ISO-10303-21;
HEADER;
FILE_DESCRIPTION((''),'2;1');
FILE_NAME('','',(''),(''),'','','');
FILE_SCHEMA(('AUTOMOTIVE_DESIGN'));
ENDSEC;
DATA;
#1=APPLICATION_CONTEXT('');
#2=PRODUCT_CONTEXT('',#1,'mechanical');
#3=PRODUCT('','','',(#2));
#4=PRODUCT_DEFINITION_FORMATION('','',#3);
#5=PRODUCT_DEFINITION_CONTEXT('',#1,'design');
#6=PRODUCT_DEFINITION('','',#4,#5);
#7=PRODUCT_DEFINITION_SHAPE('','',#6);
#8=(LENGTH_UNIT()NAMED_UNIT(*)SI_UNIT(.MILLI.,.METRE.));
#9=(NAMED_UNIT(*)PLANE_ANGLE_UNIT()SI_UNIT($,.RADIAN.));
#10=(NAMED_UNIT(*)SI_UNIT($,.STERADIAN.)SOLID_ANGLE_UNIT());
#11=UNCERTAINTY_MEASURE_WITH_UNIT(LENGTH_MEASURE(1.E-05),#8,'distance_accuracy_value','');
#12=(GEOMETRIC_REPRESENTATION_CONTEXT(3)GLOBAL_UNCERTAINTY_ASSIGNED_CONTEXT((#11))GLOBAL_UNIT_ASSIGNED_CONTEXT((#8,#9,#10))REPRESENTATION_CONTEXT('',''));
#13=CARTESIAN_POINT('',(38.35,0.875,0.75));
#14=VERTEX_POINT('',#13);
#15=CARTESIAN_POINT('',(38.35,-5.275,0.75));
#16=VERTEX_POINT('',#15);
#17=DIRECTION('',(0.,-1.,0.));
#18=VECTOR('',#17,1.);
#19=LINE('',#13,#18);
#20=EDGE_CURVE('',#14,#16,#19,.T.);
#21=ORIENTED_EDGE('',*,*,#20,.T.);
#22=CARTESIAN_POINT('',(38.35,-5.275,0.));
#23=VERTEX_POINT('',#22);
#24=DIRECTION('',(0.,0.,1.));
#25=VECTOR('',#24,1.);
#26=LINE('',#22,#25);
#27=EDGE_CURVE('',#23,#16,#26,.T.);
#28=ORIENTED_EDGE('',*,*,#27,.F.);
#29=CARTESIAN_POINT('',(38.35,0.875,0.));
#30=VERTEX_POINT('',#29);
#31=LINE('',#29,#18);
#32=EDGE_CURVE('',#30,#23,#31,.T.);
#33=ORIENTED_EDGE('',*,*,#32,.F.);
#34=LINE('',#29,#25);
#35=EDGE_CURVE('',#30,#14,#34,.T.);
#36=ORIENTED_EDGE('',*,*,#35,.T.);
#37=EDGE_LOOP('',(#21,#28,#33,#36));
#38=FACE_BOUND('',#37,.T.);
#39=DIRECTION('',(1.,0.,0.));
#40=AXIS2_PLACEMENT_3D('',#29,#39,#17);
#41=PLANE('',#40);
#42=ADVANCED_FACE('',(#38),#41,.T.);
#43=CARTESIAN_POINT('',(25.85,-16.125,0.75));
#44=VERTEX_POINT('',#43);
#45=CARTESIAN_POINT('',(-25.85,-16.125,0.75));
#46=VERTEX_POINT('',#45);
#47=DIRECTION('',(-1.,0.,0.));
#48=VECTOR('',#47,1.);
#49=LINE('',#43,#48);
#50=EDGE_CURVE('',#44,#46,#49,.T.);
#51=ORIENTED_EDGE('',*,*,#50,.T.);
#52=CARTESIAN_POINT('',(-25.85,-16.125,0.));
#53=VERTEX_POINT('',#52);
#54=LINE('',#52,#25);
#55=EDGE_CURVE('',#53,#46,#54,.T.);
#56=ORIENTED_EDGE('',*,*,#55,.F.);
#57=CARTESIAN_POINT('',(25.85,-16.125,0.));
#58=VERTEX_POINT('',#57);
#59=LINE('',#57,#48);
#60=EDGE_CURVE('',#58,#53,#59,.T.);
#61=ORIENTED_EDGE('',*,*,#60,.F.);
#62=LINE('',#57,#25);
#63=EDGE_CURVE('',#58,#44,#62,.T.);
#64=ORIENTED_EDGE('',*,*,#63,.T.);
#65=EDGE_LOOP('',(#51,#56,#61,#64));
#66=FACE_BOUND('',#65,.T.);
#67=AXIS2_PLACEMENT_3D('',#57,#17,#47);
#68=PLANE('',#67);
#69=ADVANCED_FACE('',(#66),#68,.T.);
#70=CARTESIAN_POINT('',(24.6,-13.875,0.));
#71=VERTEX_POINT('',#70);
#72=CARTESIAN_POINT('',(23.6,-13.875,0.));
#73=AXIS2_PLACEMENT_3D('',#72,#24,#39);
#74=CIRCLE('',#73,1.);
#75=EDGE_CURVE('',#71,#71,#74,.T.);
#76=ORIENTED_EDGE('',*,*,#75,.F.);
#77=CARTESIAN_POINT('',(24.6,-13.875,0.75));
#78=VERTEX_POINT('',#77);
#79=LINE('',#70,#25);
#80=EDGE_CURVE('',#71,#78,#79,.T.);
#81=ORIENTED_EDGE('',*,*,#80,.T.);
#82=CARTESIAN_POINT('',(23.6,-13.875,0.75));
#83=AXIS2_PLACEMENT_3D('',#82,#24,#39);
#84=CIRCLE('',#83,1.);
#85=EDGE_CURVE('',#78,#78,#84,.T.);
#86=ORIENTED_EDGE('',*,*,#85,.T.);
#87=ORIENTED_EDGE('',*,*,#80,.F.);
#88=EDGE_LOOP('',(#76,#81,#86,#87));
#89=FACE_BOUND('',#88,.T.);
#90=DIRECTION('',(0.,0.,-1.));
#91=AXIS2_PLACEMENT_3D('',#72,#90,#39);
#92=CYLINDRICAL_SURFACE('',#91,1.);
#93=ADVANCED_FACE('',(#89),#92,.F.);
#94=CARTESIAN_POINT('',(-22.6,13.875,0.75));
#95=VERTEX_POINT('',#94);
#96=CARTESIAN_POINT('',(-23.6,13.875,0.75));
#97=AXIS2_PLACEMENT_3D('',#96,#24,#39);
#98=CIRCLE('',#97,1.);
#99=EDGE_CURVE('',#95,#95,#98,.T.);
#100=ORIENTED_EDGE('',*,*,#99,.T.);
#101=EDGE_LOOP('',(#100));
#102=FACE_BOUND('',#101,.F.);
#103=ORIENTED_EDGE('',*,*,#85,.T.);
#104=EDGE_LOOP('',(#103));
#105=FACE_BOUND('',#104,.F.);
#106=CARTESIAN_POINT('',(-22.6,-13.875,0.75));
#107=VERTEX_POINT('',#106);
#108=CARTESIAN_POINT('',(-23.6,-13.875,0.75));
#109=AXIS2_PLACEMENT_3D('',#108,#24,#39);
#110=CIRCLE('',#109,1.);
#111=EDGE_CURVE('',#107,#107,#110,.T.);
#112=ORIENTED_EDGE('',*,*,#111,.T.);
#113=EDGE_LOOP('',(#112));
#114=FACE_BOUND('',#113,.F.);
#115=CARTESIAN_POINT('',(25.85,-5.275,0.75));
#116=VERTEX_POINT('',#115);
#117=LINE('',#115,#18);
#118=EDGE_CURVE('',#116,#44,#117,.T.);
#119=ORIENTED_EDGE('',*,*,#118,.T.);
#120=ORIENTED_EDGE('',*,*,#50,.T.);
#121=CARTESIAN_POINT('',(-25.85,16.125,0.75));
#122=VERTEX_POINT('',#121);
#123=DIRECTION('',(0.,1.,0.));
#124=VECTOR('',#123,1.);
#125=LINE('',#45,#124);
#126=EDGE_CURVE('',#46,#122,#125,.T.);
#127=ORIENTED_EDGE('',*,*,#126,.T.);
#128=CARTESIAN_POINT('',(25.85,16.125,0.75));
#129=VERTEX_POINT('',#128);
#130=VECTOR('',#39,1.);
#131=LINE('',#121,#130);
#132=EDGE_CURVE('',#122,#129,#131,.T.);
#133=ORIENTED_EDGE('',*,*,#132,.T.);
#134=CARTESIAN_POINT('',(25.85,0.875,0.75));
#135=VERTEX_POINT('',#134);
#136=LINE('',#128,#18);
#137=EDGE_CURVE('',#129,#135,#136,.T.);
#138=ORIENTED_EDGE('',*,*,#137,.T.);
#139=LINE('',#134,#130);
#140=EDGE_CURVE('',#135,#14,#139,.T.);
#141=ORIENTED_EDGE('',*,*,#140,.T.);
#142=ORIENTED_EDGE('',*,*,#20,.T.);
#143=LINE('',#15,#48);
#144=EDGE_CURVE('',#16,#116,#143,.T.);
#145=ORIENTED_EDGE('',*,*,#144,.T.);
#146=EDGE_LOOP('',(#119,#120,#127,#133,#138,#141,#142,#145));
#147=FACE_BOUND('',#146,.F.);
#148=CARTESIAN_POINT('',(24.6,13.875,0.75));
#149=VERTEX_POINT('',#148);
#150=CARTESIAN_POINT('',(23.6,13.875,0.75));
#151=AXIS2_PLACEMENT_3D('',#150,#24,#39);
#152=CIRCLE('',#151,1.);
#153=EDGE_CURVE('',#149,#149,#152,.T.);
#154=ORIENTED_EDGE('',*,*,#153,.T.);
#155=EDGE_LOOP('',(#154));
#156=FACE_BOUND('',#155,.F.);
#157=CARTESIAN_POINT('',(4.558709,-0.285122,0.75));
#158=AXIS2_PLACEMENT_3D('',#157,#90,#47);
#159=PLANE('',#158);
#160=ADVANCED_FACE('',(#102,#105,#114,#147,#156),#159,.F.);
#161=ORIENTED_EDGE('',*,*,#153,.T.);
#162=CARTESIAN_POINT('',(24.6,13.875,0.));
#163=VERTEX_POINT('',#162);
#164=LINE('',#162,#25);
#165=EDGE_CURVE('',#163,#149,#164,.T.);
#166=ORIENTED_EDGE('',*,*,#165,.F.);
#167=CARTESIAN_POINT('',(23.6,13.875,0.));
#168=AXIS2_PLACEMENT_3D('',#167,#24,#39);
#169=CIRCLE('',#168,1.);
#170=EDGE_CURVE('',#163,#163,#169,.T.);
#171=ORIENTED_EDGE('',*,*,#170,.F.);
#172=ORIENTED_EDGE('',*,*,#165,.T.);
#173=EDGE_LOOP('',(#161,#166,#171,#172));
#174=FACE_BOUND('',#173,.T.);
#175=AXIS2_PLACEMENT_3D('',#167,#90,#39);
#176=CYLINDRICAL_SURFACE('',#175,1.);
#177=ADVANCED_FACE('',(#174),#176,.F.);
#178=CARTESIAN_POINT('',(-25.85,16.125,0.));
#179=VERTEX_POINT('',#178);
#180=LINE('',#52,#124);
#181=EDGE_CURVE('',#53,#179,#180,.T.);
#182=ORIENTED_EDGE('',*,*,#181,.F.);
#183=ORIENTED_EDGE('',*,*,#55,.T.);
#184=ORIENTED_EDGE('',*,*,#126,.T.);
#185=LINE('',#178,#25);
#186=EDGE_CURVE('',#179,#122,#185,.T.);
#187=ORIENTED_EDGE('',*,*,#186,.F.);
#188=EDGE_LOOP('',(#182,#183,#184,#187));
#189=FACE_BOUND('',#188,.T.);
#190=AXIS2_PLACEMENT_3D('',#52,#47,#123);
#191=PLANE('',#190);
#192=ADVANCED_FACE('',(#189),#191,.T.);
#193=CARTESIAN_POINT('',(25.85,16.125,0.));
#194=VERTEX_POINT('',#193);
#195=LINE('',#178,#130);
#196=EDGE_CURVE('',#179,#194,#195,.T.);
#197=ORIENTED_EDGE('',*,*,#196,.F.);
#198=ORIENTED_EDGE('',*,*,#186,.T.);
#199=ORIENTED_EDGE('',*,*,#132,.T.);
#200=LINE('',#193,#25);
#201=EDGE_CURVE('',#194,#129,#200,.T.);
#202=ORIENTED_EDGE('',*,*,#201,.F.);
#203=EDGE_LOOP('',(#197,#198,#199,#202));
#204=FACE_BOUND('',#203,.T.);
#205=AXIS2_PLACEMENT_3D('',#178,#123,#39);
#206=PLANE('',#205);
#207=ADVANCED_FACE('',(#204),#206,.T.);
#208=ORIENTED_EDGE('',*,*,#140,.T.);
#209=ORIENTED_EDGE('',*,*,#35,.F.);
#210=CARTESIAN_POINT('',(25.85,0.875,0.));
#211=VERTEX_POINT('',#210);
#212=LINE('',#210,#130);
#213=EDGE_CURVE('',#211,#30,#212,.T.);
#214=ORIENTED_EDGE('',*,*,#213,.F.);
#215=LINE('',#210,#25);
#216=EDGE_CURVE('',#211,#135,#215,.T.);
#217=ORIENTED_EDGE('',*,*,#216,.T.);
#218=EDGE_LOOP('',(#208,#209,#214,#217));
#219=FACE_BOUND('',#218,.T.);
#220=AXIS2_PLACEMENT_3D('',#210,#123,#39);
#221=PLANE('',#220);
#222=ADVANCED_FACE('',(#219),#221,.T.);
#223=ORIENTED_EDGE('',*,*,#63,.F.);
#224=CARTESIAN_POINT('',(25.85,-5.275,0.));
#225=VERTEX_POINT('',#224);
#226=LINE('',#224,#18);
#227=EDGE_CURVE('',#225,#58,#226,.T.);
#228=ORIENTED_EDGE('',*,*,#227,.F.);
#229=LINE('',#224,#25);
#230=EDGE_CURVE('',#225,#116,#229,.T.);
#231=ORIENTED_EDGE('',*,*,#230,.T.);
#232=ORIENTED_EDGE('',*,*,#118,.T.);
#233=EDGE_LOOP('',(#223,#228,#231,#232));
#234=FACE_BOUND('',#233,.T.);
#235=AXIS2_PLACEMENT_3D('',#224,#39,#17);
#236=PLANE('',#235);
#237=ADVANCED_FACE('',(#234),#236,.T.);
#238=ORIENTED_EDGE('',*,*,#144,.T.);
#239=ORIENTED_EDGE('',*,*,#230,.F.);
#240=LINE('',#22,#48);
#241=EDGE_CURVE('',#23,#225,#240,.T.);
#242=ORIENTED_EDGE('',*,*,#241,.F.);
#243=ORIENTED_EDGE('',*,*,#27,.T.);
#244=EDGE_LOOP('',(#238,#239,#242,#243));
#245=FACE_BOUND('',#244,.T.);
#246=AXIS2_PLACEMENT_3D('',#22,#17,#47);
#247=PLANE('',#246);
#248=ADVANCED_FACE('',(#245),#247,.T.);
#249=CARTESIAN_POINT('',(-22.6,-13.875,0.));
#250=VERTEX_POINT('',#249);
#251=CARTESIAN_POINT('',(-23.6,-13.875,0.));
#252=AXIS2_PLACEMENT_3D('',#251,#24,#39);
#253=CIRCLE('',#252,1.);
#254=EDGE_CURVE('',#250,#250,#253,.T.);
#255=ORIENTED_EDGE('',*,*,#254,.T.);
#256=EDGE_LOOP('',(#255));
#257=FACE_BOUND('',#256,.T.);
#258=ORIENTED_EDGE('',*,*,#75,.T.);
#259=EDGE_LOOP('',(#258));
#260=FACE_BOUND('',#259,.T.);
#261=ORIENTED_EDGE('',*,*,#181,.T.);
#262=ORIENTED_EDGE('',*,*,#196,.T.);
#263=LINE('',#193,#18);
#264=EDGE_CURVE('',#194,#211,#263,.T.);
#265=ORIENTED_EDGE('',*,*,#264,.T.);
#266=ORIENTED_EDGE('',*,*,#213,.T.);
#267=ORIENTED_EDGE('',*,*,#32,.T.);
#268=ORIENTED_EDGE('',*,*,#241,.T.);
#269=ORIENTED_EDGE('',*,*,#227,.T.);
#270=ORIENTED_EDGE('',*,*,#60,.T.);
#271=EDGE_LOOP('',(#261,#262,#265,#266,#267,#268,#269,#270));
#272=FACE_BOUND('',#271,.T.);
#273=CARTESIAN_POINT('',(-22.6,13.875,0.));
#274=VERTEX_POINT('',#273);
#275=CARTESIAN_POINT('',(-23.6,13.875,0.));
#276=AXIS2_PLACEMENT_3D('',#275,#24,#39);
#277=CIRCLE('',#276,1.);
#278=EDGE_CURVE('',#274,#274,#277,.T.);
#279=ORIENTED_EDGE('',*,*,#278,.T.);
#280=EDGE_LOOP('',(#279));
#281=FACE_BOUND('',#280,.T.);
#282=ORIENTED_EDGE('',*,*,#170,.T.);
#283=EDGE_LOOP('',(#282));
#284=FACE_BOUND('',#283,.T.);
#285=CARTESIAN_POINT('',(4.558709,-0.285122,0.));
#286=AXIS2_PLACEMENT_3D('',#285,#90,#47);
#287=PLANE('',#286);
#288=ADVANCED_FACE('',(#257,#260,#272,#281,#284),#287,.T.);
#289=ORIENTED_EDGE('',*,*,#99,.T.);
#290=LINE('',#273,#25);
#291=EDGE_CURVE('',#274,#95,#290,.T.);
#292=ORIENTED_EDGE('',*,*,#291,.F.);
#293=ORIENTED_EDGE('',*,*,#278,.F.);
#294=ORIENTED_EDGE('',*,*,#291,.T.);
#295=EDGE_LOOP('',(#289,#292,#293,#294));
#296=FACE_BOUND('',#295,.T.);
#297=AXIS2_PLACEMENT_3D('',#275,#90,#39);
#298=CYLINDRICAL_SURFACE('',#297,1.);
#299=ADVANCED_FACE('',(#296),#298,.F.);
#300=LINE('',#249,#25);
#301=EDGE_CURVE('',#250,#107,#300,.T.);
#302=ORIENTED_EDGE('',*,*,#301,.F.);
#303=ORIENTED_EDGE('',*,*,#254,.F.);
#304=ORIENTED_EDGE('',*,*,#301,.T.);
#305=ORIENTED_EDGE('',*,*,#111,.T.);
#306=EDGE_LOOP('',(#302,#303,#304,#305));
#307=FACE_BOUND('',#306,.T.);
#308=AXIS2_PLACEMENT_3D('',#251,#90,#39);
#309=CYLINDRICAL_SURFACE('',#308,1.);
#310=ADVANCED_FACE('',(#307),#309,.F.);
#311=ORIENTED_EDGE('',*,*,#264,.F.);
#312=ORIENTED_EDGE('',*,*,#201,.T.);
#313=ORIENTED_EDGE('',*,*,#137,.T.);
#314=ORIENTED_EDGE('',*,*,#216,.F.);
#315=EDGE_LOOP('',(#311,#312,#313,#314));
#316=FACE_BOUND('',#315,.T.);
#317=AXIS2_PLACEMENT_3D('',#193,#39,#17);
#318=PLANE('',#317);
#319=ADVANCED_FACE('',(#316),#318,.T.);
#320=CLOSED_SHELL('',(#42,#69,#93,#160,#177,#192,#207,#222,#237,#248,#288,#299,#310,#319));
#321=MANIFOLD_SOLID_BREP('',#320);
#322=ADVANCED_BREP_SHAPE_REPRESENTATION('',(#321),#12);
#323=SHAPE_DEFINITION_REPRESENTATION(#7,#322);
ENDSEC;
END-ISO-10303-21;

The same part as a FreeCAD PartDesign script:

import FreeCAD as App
import Part
import Sketcher
from FreeCAD import Vector


def add_polygon(sketch, points):
    """Adds a closed chain of lines whose ends are joined by coincident constraints."""
    first, n = sketch.GeometryCount, len(points)
    for a, b in zip(points, points[1:] + points[:1]):
        sketch.addGeometry(Part.LineSegment(App.Vector(*a, 0), App.Vector(*b, 0)), False)
    for i in range(n):
        sketch.addConstraint(Sketcher.Constraint("Coincident", first + i, 2, first + (i + 1) % n, 1))

doc = App.newDocument("Part")
body = doc.addObject("PartDesign::Body", "Body")

sketch1 = body.newObject("Sketcher::SketchObject", "Sketch")
sketch1.AttachmentSupport = (doc.getObject("XY_Plane"), [""])
sketch1.MapMode = "FlatFace"
add_polygon(sketch1, [(25.9, 16.1), (-25.9, 16.1), (-25.9, -16.1), (25.9, -16.1), (25.9, -5.3), (38.4, -5.3), (38.4, 0.9), (25.9, 0.9)])
sketch1.addGeometry(Part.Circle(Vector(23.6, -13.9, 0), Vector(0, 0, 1), 1), False)
sketch1.addGeometry(Part.Circle(Vector(-23.6, -13.9, 0), Vector(0, 0, 1), 1), False)
sketch1.addGeometry(Part.Circle(Vector(23.6, 13.9, 0), Vector(0, 0, 1), 1), False)
sketch1.addGeometry(Part.Circle(Vector(-23.6, 13.9, 0), Vector(0, 0, 1), 1), False)
sketch1.addConstraint([
    Sketcher.Constraint("Horizontal", 0),
    Sketcher.Constraint("Vertical", 1),
    Sketcher.Constraint("Horizontal", 2),
    Sketcher.Constraint("Vertical", 3),
    Sketcher.Constraint("Horizontal", 4),
    Sketcher.Constraint("Vertical", 5),
    Sketcher.Constraint("Horizontal", 6),
    Sketcher.Constraint("Vertical", 7),
    Sketcher.Constraint("Equal", 8, 9),
    Sketcher.Constraint("Equal", 9, 10),
    Sketcher.Constraint("Equal", 10, 11),
    Sketcher.Constraint("Symmetric", 9, 3, 10, 3, -1, 1),
    Sketcher.Constraint("Symmetric", 8, 3, 11, 3, -1, 1),
    Sketcher.Constraint("Symmetric", 0, 2, 2, 2, -1, 1),
    Sketcher.Constraint("Symmetric", 8, 3, 9, 3, -2),
    Sketcher.Constraint("Vertical", 3, 2, 6, 2),
    Sketcher.Constraint("Diameter", 8, 2.0),
    Sketcher.Constraint("DistanceX", 0, 2, 0, 1, 51.7),
    Sketcher.Constraint("DistanceX", 4, 1, 4, 2, 12.5),
    Sketcher.Constraint("DistanceY", 9, 3, 0, 2, 30.0),
    Sketcher.Constraint("DistanceY", 5, 2, 10, 3, 13.0),
    Sketcher.Constraint("DistanceY", 1, 2, 1, 1, 32.25),
    Sketcher.Constraint("DistanceY", 3, 1, 3, 2, 10.85),
    Sketcher.Constraint("DistanceX", -1, 1, 8, 3, 23.6),
])
pad1 = body.newObject("PartDesign::Pad", "Pad")
pad1.Profile = sketch1
pad1.Length = 0.75

doc.recompute()
